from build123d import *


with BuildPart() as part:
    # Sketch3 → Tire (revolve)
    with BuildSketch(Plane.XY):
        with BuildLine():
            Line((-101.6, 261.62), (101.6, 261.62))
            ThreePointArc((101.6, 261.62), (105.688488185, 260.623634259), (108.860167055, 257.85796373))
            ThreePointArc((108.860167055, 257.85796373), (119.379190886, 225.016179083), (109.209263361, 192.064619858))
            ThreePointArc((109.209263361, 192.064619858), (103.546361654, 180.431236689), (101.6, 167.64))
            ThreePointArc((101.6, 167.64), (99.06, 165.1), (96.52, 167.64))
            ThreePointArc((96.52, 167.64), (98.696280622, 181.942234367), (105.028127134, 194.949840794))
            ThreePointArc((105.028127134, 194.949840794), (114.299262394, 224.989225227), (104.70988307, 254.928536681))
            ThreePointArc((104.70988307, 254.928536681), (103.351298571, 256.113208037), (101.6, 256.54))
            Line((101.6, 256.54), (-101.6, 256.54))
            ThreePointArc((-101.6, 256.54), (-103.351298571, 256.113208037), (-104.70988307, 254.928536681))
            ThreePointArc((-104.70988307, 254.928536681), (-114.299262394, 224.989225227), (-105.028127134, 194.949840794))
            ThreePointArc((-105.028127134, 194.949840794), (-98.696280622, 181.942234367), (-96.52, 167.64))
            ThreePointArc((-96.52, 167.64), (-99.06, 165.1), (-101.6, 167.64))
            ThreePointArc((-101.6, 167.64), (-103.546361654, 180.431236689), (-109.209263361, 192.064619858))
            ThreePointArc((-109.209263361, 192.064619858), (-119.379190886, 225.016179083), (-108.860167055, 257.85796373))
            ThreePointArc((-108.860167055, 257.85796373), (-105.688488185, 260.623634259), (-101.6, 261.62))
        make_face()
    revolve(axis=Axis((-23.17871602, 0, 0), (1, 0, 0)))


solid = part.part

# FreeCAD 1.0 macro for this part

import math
import FreeCAD as App
import Part
import Sketcher
Q = App.Units.Quantity

doc = App.newDocument("Part")
body = doc.addObject("PartDesign::Body", "Body")

# Sketch on XY plane
sketch1 = body.newObject("Sketcher::SketchObject", "Sketch")
sketch1.AttachmentSupport = (doc.getObject("XY_Plane"), [""])
sketch1.MapMode = "FlatFace"
sketch1.addGeometry([
    Part.LineSegment(App.Vector(101.6, 261.6, 0), App.Vector(-101.6, 261.6, 0)),  # 0
    Part.ArcOfCircle(Part.Circle(App.Vector(-101.6, 252.7, 0), App.Vector(0, 0, 1), 8.9), math.radians(90), math.radians(145)),  # 1
    Part.ArcOfCircle(Part.Circle(App.Vector(-61.9, 224.7, 0), App.Vector(0, 0, 1), 57.5), math.radians(145), math.radians(215)),  # 2
    Part.ArcOfCircle(Part.Circle(App.Vector(-144.6, 167.6, 0), App.Vector(0, 0, 1), 43), math.radians(0), math.radians(35)),  # 3
    Part.ArcOfCircle(Part.Circle(App.Vector(-99.1, 167.6, 0), App.Vector(0, 0, 1), 2.5), math.radians(180), math.radians(360)),  # 4
    Part.ArcOfCircle(Part.Circle(App.Vector(-144.6, 167.6, 0), App.Vector(0, 0, 1), 48.1), math.radians(0), math.radians(35)),  # 5
    Part.ArcOfCircle(Part.Circle(App.Vector(-61.9, 224.7, 0), App.Vector(0, 0, 1), 52.4), math.radians(145), math.radians(215)),  # 6
    Part.ArcOfCircle(Part.Circle(App.Vector(-101.6, 252.7, 0), App.Vector(0, 0, 1), 3.8), math.radians(90), math.radians(145)),  # 7
    Part.LineSegment(App.Vector(-101.6, 256.5, 0), App.Vector(101.6, 256.5, 0)),  # 8
    Part.ArcOfCircle(Part.Circle(App.Vector(101.6, 252.7, 0), App.Vector(0, 0, 1), 3.8), math.radians(35), math.radians(90)),  # 9
    Part.ArcOfCircle(Part.Circle(App.Vector(61.9, 224.7, 0), App.Vector(0, 0, 1), 52.4), math.radians(-35), math.radians(35)),  # 10
    Part.ArcOfCircle(Part.Circle(App.Vector(144.6, 167.6, 0), App.Vector(0, 0, 1), 48.1), math.radians(145), math.radians(180)),  # 11
    Part.ArcOfCircle(Part.Circle(App.Vector(99.1, 167.6, 0), App.Vector(0, 0, 1), 2.5), math.radians(180), math.radians(360)),  # 12
    Part.ArcOfCircle(Part.Circle(App.Vector(144.6, 167.6, 0), App.Vector(0, 0, 1), 43), math.radians(145), math.radians(180)),  # 13
    Part.ArcOfCircle(Part.Circle(App.Vector(61.9, 224.7, 0), App.Vector(0, 0, 1), 57.5), math.radians(-35), math.radians(35)),  # 14
    Part.ArcOfCircle(Part.Circle(App.Vector(101.6, 252.7, 0), App.Vector(0, 0, 1), 8.9), math.radians(35), math.radians(90)),  # 15
], False)
sketch1.addConstraint([
    Sketcher.Constraint("Tangent", 0, 2, 1, 1),
    Sketcher.Constraint("Tangent", 1, 2, 2, 1),
    Sketcher.Constraint("Tangent", 2, 2, 3, 2),
    Sketcher.Constraint("Tangent", 3, 1, 4, 1),
    Sketcher.Constraint("Tangent", 4, 2, 5, 1),
    Sketcher.Constraint("Tangent", 5, 2, 6, 2),
    Sketcher.Constraint("Tangent", 6, 1, 7, 2),
    Sketcher.Constraint("Tangent", 7, 1, 8, 1),
    Sketcher.Constraint("Tangent", 8, 2, 9, 2),
    Sketcher.Constraint("Tangent", 9, 1, 10, 2),
    Sketcher.Constraint("Tangent", 10, 1, 11, 1),
    Sketcher.Constraint("Tangent", 11, 2, 12, 1),
    Sketcher.Constraint("Tangent", 12, 2, 13, 2),
    Sketcher.Constraint("Tangent", 13, 1, 14, 1),
    Sketcher.Constraint("Tangent", 14, 2, 15, 1),
    Sketcher.Constraint("Tangent", 15, 2, 0, 1),
    Sketcher.Constraint("Horizontal", 0),
    Sketcher.Constraint("Horizontal", 8),
    Sketcher.Constraint("Coincident", 5, 3, 3, 3),
    Sketcher.Constraint("Coincident", 6, 3, 2, 3),
    Sketcher.Constraint("Coincident", 7, 3, 1, 3),
    Sketcher.Constraint("Coincident", 13, 3, 11, 3),
    Sketcher.Constraint("Coincident", 14, 3, 10, 3),
    Sketcher.Constraint("Coincident", 15, 3, 9, 3),
    Sketcher.Constraint("Equal", 7, 9),
    Sketcher.Constraint("Equal", 6, 10),
    Sketcher.Constraint("Equal", 5, 11),
    Sketcher.Constraint("Symmetric", 2, 3, 10, 3, -2),
    Sketcher.Constraint("Symmetric", 4, 3, 12, 3, -2),
    Sketcher.Constraint("Horizontal", 3, 3, 4, 3),
    Sketcher.Constraint("Vertical", 0, 2, 3, 1),
    Sketcher.Constraint("Radius", 4, Q("0.1 in")),
    Sketcher.Constraint("DistanceX", 0, 2, 0, 1, Q("8 in")),
    Sketcher.Constraint("DistanceY", -1, 1, 3, 3, Q("6.6 in")),
    Sketcher.Constraint("DistanceY", -1, 1, 0, 2, Q("10.3 in")),
    Sketcher.Constraint("Radius", 1, Q("8.886536 mm")),
    Sketcher.Constraint("Radius", 2, Q("57.480726 mm")),
    Sketcher.Constraint("Radius", 3, Q("43.004356 mm")),
])
revolution = body.newObject("PartDesign::Revolution", "Revolution")
revolution.Profile = sketch1
revolution.ReferenceAxis = (sketch1, ["H_Axis"])
revolution.Angle = 360

doc.recompute()
